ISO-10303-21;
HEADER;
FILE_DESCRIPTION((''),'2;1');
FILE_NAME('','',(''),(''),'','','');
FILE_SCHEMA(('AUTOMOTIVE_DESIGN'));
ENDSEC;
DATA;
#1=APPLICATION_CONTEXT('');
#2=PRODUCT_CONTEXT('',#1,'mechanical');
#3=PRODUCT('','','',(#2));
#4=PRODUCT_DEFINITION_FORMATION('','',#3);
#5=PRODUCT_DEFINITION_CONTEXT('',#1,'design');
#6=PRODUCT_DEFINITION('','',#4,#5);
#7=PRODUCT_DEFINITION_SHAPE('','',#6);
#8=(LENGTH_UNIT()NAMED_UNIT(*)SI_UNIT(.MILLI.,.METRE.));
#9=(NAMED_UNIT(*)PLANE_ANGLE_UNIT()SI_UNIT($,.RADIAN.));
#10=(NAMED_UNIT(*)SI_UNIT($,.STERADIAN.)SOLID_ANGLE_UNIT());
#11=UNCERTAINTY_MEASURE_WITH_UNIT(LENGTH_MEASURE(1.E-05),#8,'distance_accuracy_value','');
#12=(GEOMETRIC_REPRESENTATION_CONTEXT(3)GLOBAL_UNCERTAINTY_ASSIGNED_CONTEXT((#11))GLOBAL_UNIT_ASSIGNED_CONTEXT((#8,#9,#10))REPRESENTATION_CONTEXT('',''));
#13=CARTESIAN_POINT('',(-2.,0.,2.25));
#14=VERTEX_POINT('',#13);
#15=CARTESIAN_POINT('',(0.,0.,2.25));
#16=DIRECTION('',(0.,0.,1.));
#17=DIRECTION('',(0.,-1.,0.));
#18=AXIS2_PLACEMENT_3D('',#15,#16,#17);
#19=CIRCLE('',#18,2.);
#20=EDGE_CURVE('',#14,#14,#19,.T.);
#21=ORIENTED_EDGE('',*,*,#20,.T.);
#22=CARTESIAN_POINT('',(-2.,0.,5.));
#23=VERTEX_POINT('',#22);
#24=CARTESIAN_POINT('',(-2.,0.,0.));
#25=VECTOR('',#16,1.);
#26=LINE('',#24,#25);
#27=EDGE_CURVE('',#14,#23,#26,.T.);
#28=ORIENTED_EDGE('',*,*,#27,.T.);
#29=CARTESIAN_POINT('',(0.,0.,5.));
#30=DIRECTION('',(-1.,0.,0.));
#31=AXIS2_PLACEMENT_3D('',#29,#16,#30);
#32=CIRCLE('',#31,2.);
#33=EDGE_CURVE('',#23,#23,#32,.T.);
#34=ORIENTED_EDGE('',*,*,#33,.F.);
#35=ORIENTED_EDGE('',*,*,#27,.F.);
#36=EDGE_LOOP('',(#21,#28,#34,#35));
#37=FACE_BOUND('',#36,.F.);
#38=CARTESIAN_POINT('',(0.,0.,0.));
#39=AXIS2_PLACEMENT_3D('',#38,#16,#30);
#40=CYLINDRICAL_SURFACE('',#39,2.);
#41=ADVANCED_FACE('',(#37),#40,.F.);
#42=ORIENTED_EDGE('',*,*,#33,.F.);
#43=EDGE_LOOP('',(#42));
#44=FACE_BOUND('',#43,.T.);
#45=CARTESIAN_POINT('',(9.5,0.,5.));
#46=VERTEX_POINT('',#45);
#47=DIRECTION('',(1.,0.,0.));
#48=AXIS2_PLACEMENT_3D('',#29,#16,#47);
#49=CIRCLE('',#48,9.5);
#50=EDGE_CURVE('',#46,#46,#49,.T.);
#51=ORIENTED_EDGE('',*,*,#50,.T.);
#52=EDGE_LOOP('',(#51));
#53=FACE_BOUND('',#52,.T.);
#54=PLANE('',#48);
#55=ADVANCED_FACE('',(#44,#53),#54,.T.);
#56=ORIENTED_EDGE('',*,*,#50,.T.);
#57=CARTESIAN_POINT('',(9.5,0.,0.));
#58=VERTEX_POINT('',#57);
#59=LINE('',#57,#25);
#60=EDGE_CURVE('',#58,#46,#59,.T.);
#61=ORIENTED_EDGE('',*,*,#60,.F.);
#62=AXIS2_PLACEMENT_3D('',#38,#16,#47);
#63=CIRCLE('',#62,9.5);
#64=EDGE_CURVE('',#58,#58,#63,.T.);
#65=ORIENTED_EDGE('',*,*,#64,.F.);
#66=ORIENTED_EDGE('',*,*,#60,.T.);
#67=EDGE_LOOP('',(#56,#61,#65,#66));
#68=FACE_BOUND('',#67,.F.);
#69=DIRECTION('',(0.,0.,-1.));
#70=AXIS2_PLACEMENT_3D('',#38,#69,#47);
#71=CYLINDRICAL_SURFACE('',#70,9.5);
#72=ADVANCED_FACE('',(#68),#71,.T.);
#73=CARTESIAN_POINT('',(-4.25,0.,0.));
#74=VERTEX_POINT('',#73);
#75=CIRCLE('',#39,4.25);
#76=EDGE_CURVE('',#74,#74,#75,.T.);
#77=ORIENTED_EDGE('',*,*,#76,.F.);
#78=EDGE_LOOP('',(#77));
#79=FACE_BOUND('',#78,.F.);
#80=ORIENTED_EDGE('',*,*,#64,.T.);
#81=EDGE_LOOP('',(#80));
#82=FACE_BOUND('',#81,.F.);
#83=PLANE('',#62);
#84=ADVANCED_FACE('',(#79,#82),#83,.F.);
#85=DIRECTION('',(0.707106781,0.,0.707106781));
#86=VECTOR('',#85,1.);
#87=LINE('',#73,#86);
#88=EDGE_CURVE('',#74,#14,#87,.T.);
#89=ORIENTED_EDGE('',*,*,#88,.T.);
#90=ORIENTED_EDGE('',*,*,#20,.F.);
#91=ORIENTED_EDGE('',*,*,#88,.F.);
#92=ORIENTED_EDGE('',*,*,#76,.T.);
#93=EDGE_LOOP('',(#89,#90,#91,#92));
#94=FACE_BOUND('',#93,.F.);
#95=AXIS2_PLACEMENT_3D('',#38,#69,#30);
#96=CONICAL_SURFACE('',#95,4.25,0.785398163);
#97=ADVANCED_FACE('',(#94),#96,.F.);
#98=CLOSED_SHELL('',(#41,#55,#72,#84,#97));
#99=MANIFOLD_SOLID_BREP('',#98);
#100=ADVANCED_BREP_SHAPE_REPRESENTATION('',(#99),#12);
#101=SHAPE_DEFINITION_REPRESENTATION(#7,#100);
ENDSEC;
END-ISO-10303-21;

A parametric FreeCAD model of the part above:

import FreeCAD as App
import Part
import Sketcher
Q = App.Units.Quantity

doc = App.newDocument("Part")
body = doc.addObject("PartDesign::Body", "Body")

sketch1 = body.newObject("Sketcher::SketchObject", "Sketch")
sketch1.AttachmentSupport = (doc.getObject("XY_Plane"), [""])
sketch1.MapMode = "FlatFace"
sketch1.addGeometry(Part.Circle(App.Vector(0, 0, 0), App.Vector(0, 0, 1), 10), False)
sketch1.addConstraint([
    Sketcher.Constraint("Coincident", 0, 3, -1, 1),
    Sketcher.Constraint("Diameter", 0, Q("19 mm")),
])
pad1 = body.newObject("PartDesign::Pad", "Pad")
pad1.Profile = sketch1
pad1.Length = 5

sketch2 = body.newObject("Sketcher::SketchObject", "Sketch001")
sketch2.AttachmentSupport = (doc.getObject("XY_Plane"), [""])
sketch2.MapMode = "FlatFace"
sketch2.addGeometry(Part.Circle(App.Vector(0, 0, 0), App.Vector(0, 0, 1), 2), False)
sketch2.addConstraint([
    Sketcher.Constraint("Coincident", 0, 3, -1, 1),
    Sketcher.Constraint("Diameter", 0, Q("4 mm")),
])
doc.recompute()
hole = body.newObject("PartDesign::Hole", "Hole")
hole.Profile = sketch2
hole.ThreadType = "None"
hole.Diameter = 4
hole.DepthType = "Dimension"
hole.Depth = 5
hole.DrillPoint = "Flat"
hole.HoleCutType = "Countersink"
hole.HoleCutDiameter = 8.5
hole.HoleCutCountersinkAngle = 90
hole.Reversed = True

doc.recompute()
